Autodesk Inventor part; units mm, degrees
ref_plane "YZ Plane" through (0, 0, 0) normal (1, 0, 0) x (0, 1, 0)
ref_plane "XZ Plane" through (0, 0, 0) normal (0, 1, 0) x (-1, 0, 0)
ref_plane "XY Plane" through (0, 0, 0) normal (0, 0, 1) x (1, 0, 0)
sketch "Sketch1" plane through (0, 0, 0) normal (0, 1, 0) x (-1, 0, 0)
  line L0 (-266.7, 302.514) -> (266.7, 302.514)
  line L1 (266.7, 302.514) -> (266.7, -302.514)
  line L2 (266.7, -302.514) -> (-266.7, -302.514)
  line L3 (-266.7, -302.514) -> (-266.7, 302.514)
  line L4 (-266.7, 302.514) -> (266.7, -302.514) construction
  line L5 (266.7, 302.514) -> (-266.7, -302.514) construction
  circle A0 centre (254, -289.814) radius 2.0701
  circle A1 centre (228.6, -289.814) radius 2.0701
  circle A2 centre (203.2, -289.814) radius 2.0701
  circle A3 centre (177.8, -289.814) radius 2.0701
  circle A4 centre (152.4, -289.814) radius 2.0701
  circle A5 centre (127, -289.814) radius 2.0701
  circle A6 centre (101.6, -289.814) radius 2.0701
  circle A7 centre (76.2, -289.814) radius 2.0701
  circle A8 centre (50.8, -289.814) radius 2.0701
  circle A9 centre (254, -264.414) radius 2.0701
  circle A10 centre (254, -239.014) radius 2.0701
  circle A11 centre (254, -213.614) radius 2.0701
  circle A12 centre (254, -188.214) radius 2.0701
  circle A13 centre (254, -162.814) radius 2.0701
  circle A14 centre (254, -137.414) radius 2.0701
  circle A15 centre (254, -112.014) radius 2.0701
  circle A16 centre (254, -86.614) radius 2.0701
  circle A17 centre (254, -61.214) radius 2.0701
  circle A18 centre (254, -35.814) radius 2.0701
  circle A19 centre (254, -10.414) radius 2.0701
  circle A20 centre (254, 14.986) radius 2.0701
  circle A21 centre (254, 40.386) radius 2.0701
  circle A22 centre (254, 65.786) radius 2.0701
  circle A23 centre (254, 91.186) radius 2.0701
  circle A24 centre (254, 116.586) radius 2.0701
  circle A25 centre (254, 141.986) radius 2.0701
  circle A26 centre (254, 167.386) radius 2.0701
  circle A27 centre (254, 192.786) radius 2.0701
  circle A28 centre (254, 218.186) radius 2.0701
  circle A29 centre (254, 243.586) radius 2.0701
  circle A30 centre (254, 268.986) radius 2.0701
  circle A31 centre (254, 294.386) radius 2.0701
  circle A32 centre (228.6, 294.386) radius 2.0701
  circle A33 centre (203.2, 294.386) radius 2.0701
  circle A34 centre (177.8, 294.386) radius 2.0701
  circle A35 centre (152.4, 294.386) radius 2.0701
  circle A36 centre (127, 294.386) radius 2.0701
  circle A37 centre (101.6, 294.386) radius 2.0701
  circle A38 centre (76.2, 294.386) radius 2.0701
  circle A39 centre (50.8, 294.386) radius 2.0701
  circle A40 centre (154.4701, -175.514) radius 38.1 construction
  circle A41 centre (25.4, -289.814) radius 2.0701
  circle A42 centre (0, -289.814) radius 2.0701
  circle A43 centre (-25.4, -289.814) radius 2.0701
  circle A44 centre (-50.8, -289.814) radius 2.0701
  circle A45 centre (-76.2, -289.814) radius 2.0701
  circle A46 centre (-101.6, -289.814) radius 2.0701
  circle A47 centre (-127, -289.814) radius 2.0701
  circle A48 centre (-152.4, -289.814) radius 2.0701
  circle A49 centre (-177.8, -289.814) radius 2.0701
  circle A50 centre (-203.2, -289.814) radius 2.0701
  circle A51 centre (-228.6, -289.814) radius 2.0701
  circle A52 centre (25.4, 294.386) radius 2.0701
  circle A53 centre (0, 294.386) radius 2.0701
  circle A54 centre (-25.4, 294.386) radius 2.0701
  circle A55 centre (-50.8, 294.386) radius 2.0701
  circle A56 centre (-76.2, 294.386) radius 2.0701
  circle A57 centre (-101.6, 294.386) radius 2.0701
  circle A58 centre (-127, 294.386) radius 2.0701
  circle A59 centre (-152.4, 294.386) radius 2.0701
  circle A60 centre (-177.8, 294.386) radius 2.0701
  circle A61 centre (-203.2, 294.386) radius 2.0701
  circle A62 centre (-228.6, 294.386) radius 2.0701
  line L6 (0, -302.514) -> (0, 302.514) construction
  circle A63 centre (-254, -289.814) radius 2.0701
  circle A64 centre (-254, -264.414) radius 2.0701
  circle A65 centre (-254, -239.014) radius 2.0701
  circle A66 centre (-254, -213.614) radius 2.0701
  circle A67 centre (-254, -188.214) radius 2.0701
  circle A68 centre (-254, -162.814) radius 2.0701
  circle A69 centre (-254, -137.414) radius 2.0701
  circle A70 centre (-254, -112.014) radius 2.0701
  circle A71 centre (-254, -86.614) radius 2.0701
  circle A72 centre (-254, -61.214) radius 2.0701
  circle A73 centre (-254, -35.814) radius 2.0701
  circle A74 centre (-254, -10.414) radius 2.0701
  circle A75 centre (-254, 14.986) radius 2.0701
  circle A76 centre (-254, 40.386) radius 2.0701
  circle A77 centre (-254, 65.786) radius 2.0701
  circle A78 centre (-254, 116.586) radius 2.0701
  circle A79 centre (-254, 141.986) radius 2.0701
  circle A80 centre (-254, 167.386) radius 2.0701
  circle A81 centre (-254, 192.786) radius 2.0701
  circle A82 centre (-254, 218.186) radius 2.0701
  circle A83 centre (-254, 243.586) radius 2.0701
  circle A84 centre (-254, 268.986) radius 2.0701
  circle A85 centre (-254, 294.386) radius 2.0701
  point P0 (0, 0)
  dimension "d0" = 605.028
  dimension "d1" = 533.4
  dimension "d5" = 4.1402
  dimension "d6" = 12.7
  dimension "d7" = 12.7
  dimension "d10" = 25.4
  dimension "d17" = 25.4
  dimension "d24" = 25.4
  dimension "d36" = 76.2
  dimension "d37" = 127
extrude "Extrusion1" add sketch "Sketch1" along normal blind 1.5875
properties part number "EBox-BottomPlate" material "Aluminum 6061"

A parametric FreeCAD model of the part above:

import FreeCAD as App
import Part
import Sketcher
Q = App.Units.Quantity

doc = App.newDocument("Part")
body = doc.addObject("PartDesign::Body", "Body")

# Sketch on XZ plane
sketch1 = doc.addObject("Sketcher::SketchObject", "Sketch")
body.addObject(sketch1)
sketch1.AttachmentSupport = (doc.XZ_Plane, [""])
sketch1.MapMode = "FlatFace"
sketch1.addGeometry([
    Part.LineSegment(App.Vector(-266.7, 302.5, 0), App.Vector(266.7, 302.5, 0)),  # 0
    Part.LineSegment(App.Vector(266.7, 302.5, 0), App.Vector(266.7, -302.5, 0)),  # 1
    Part.LineSegment(App.Vector(266.7, -302.5, 0), App.Vector(-266.7, -302.5, 0)),  # 2
    Part.LineSegment(App.Vector(-266.7, -302.5, 0), App.Vector(-266.7, 302.5, 0)),  # 3
    Part.Circle(App.Vector(254, -289.8, 0), App.Vector(0, 0, 1), 2.1),  # 4
    Part.Circle(App.Vector(228.6, -289.8, 0), App.Vector(0, 0, 1), 2.1),  # 5
    Part.Circle(App.Vector(203.2, -289.8, 0), App.Vector(0, 0, 1), 2.1),  # 6
    Part.Circle(App.Vector(254, -264.4, 0), App.Vector(0, 0, 1), 2.1),  # 7
    Part.Circle(App.Vector(254, -239, 0), App.Vector(0, 0, 1), 2.1),  # 8
    Part.Circle(App.Vector(177.8, -289.8, 0), App.Vector(0, 0, 1), 2.1),  # 9
    Part.Circle(App.Vector(152.4, -289.8, 0), App.Vector(0, 0, 1), 2.1),  # 10
    Part.Circle(App.Vector(254, -213.6, 0), App.Vector(0, 0, 1), 2.1),  # 11
    Part.Circle(App.Vector(254, -188.2, 0), App.Vector(0, 0, 1), 2.1),  # 12
    Part.Circle(App.Vector(254, -162.8, 0), App.Vector(0, 0, 1), 2.1),  # 13
    Part.Circle(App.Vector(127, -289.8, 0), App.Vector(0, 0, 1), 2.1),  # 14
    Part.Circle(App.Vector(101.6, -289.8, 0), App.Vector(0, 0, 1), 2.1),  # 15
    Part.Circle(App.Vector(76.2, -289.8, 0), App.Vector(0, 0, 1), 2.1),  # 16
    Part.Circle(App.Vector(50.8, -289.8, 0), App.Vector(0, 0, 1), 2.1),  # 17
    Part.Circle(App.Vector(25.4, -289.8, 0), App.Vector(0, 0, 1), 2.1),  # 18
    Part.Circle(App.Vector(254, -137.4, 0), App.Vector(0, 0, 1), 2.1),  # 19
    Part.Circle(App.Vector(254, -112, 0), App.Vector(0, 0, 1), 2.1),  # 20
    Part.Circle(App.Vector(254, -86.6, 0), App.Vector(0, 0, 1), 2.1),  # 21
    Part.Circle(App.Vector(254, -61.2, 0), App.Vector(0, 0, 1), 2.1),  # 22
    Part.Circle(App.Vector(254, -35.8, 0), App.Vector(0, 0, 1), 2.1),  # 23
    Part.Circle(App.Vector(254, -10.4, 0), App.Vector(0, 0, 1), 2.1),  # 24
    Part.Circle(App.Vector(0, -289.8, 0), App.Vector(0, 0, 1), 2.1),  # 25
    Part.Circle(App.Vector(-25.4, -289.8, 0), App.Vector(0, 0, 1), 2.1),  # 26
    Part.Circle(App.Vector(-50.8, -289.8, 0), App.Vector(0, 0, 1), 2.1),  # 27
    Part.Circle(App.Vector(-76.2, -289.8, 0), App.Vector(0, 0, 1), 2.1),  # 28
    Part.Circle(App.Vector(-101.6, -289.8, 0), App.Vector(0, 0, 1), 2.1),  # 29
    Part.Circle(App.Vector(-127, -289.8, 0), App.Vector(0, 0, 1), 2.1),  # 30
    Part.Circle(App.Vector(-152.4, -289.8, 0), App.Vector(0, 0, 1), 2.1),  # 31
    Part.Circle(App.Vector(-177.8, -289.8, 0), App.Vector(0, 0, 1), 2.1),  # 32
    Part.Circle(App.Vector(-203.2, -289.8, 0), App.Vector(0, 0, 1), 2.1),  # 33
    Part.Circle(App.Vector(-228.6, -289.8, 0), App.Vector(0, 0, 1), 2.1),  # 34
    Part.Circle(App.Vector(-254, -289.8, 0), App.Vector(0, 0, 1), 2.1),  # 35
    Part.Circle(App.Vector(-254, -264.4, 0), App.Vector(0, 0, 1), 2.1),  # 36
    Part.Circle(App.Vector(-254, -239, 0), App.Vector(0, 0, 1), 2.1),  # 37
    Part.Circle(App.Vector(-254, -213.6, 0), App.Vector(0, 0, 1), 2.1),  # 38
    Part.Circle(App.Vector(-254, -188.2, 0), App.Vector(0, 0, 1), 2.1),  # 39
    Part.Circle(App.Vector(-254, -162.8, 0), App.Vector(0, 0, 1), 2.1),  # 40
    Part.Circle(App.Vector(-254, -137.4, 0), App.Vector(0, 0, 1), 2.1),  # 41
    Part.Circle(App.Vector(-254, -112, 0), App.Vector(0, 0, 1), 2.1),  # 42
    Part.Circle(App.Vector(-254, -86.6, 0), App.Vector(0, 0, 1), 2.1),  # 43
    Part.Circle(App.Vector(-254, -61.2, 0), App.Vector(0, 0, 1), 2.1),  # 44
    Part.Circle(App.Vector(-254, -35.8, 0), App.Vector(0, 0, 1), 2.1),  # 45
    Part.Circle(App.Vector(-254, -10.4, 0), App.Vector(0, 0, 1), 2.1),  # 46
    Part.Circle(App.Vector(254, 15, 0), App.Vector(0, 0, 1), 2.1),  # 47
    Part.Circle(App.Vector(254, 40.4, 0), App.Vector(0, 0, 1), 2.1),  # 48
    Part.Circle(App.Vector(254, 65.8, 0), App.Vector(0, 0, 1), 2.1),  # 49
    Part.Circle(App.Vector(254, 116.6, 0), App.Vector(0, 0, 1), 2.1),  # 50
    Part.Circle(App.Vector(254, 142, 0), App.Vector(0, 0, 1), 2.1),  # 51
    Part.Circle(App.Vector(254, 167.4, 0), App.Vector(0, 0, 1), 2.1),  # 52
    Part.Circle(App.Vector(254, 192.8, 0), App.Vector(0, 0, 1), 2.1),  # 53
    Part.Circle(App.Vector(254, 218.2, 0), App.Vector(0, 0, 1), 2.1),  # 54
    Part.Circle(App.Vector(254, 243.6, 0), App.Vector(0, 0, 1), 2.1),  # 55
    Part.Circle(App.Vector(254, 269, 0), App.Vector(0, 0, 1), 2.1),  # 56
    Part.Circle(App.Vector(254, 294.4, 0), App.Vector(0, 0, 1), 2.1),  # 57
    Part.Circle(App.Vector(228.6, 294.4, 0), App.Vector(0, 0, 1), 2.1),  # 58
    Part.Circle(App.Vector(203.2, 294.4, 0), App.Vector(0, 0, 1), 2.1),  # 59
    Part.Circle(App.Vector(177.8, 294.4, 0), App.Vector(0, 0, 1), 2.1),  # 60
    Part.Circle(App.Vector(152.4, 294.4, 0), App.Vector(0, 0, 1), 2.1),  # 61
    Part.Circle(App.Vector(127, 294.4, 0), App.Vector(0, 0, 1), 2.1),  # 62
    Part.Circle(App.Vector(101.6, 294.4, 0), App.Vector(0, 0, 1), 2.1),  # 63
    Part.Circle(App.Vector(76.2, 294.4, 0), App.Vector(0, 0, 1), 2.1),  # 64
    Part.Circle(App.Vector(50.8, 294.4, 0), App.Vector(0, 0, 1), 2.1),  # 65
    Part.Circle(App.Vector(25.4, 294.4, 0), App.Vector(0, 0, 1), 2.1),  # 66
    Part.Circle(App.Vector(-254, 15, 0), App.Vector(0, 0, 1), 2.1),  # 67
    Part.Circle(App.Vector(-254, 40.4, 0), App.Vector(0, 0, 1), 2.1),  # 68
    Part.Circle(App.Vector(-254, 65.8, 0), App.Vector(0, 0, 1), 2.1),  # 69
    Part.Circle(App.Vector(-254, 91.2, 0), App.Vector(0, 0, 1), 2.1),  # 70
    Part.Circle(App.Vector(-254, 116.6, 0), App.Vector(0, 0, 1), 2.1),  # 71
    Part.Circle(App.Vector(-254, 142, 0), App.Vector(0, 0, 1), 2.1),  # 72
    Part.Circle(App.Vector(0, 294.4, 0), App.Vector(0, 0, 1), 2.1),  # 73
    Part.Circle(App.Vector(-25.4, 294.4, 0), App.Vector(0, 0, 1), 2.1),  # 74
    Part.Circle(App.Vector(-50.8, 294.4, 0), App.Vector(0, 0, 1), 2.1),  # 75
    Part.Circle(App.Vector(-76.2, 294.4, 0), App.Vector(0, 0, 1), 2.1),  # 76
    Part.Circle(App.Vector(-101.6, 294.4, 0), App.Vector(0, 0, 1), 2.1),  # 77
    Part.Circle(App.Vector(-127, 294.4, 0), App.Vector(0, 0, 1), 2.1),  # 78
    Part.Circle(App.Vector(-254, 167.4, 0), App.Vector(0, 0, 1), 2.1),  # 79
    Part.Circle(App.Vector(-254, 192.8, 0), App.Vector(0, 0, 1), 2.1),  # 80
    Part.Circle(App.Vector(-254, 218.2, 0), App.Vector(0, 0, 1), 2.1),  # 81
    Part.Circle(App.Vector(-152.4, 294.4, 0), App.Vector(0, 0, 1), 2.1),  # 82
    Part.Circle(App.Vector(-177.8, 294.4, 0), App.Vector(0, 0, 1), 2.1),  # 83
    Part.Circle(App.Vector(-254, 243.6, 0), App.Vector(0, 0, 1), 2.1),  # 84
    Part.Circle(App.Vector(-203.2, 294.4, 0), App.Vector(0, 0, 1), 2.1),  # 85
    Part.Circle(App.Vector(-228.6, 294.4, 0), App.Vector(0, 0, 1), 2.1),  # 86
    Part.Circle(App.Vector(-254, 269, 0), App.Vector(0, 0, 1), 2.1),  # 87
    Part.Circle(App.Vector(-254, 294.4, 0), App.Vector(0, 0, 1), 2.1),  # 88
], False)
sketch1.addConstraint([
    Sketcher.Constraint("Coincident", 0, 2, 1, 1),
    Sketcher.Constraint("Coincident", 1, 2, 2, 1),
    Sketcher.Constraint("Coincident", 2, 2, 3, 1),
    Sketcher.Constraint("Coincident", 3, 2, 0, 1),
    Sketcher.Constraint("Horizontal", 0),
    Sketcher.Constraint("Vertical", 1),
    Sketcher.Constraint("Horizontal", 2),
    Sketcher.Constraint("Vertical", 3),
    Sketcher.Constraint("Equal", 4, 5),
    Sketcher.Constraint("Equal", 5, 6),
    Sketcher.Constraint("Equal", 6, 7),
    Sketcher.Constraint("Equal", 7, 8),
    Sketcher.Constraint("Equal", 8, 9),
    Sketcher.Constraint("Equal", 9, 10),
    Sketcher.Constraint("Equal", 10, 11),
    Sketcher.Constraint("Equal", 11, 12),
    Sketcher.Constraint("Equal", 12, 13),
    Sketcher.Constraint("Equal", 13, 14),
    Sketcher.Constraint("Equal", 14, 15),
    Sketcher.Constraint("Equal", 15, 16),
    Sketcher.Constraint("Equal", 16, 17),
    Sketcher.Constraint("Equal", 17, 18),
    Sketcher.Constraint("Equal", 18, 19),
    Sketcher.Constraint("Equal", 19, 20),
    Sketcher.Constraint("Equal", 20, 21),
    Sketcher.Constraint("Equal", 21, 22),
    Sketcher.Constraint("Equal", 22, 23),
    Sketcher.Constraint("Equal", 23, 24),
    Sketcher.Constraint("Equal", 24, 25),
    Sketcher.Constraint("Equal", 25, 26),
    Sketcher.Constraint("Equal", 26, 27),
    Sketcher.Constraint("Equal", 27, 28),
    Sketcher.Constraint("Equal", 28, 29),
    Sketcher.Constraint("Equal", 29, 30),
    Sketcher.Constraint("Equal", 30, 31),
    Sketcher.Constraint("Equal", 31, 32),
    Sketcher.Constraint("Equal", 32, 33),
    Sketcher.Constraint("Equal", 33, 34),
    Sketcher.Constraint("Equal", 34, 35),
    Sketcher.Constraint("Equal", 35, 36),
    Sketcher.Constraint("Equal", 36, 37),
    Sketcher.Constraint("Equal", 37, 38),
    Sketcher.Constraint("Equal", 38, 39),
    Sketcher.Constraint("Equal", 39, 40),
    Sketcher.Constraint("Equal", 40, 41),
    Sketcher.Constraint("Equal", 41, 42),
    Sketcher.Constraint("Equal", 42, 43),
    Sketcher.Constraint("Equal", 43, 44),
    Sketcher.Constraint("Equal", 44, 45),
    Sketcher.Constraint("Equal", 45, 46),
    Sketcher.Constraint("Equal", 46, 47),
    Sketcher.Constraint("Equal", 47, 48),
    Sketcher.Constraint("Equal", 48, 49),
    Sketcher.Constraint("Equal", 49, 50),
    Sketcher.Constraint("Equal", 50, 51),
    Sketcher.Constraint("Equal", 51, 52),
    Sketcher.Constraint("Equal", 52, 53),
    Sketcher.Constraint("Equal", 53, 54),
    Sketcher.Constraint("Equal", 54, 55),
    Sketcher.Constraint("Equal", 55, 56),
    Sketcher.Constraint("Equal", 56, 57),
    Sketcher.Constraint("Equal", 57, 58),
    Sketcher.Constraint("Equal", 58, 59),
    Sketcher.Constraint("Equal", 59, 60),
    Sketcher.Constraint("Equal", 60, 61),
    Sketcher.Constraint("Equal", 61, 62),
    Sketcher.Constraint("Equal", 62, 63),
    Sketcher.Constraint("Equal", 63, 64),
    Sketcher.Constraint("Equal", 64, 65),
    Sketcher.Constraint("Equal", 65, 66),
    Sketcher.Constraint("Equal", 66, 67),
    Sketcher.Constraint("Equal", 67, 68),
    Sketcher.Constraint("Equal", 68, 69),
    Sketcher.Constraint("Equal", 69, 70),
    Sketcher.Constraint("Equal", 70, 71),
    Sketcher.Constraint("Equal", 71, 72),
    Sketcher.Constraint("Equal", 72, 73),
    Sketcher.Constraint("Equal", 73, 74),
    Sketcher.Constraint("Equal", 74, 75),
    Sketcher.Constraint("Equal", 75, 76),
    Sketcher.Constraint("Equal", 76, 77),
    Sketcher.Constraint("Equal", 77, 78),
    Sketcher.Constraint("Equal", 78, 79),
    Sketcher.Constraint("Equal", 79, 80),
    Sketcher.Constraint("Equal", 80, 81),
    Sketcher.Constraint("Equal", 81, 82),
    Sketcher.Constraint("Equal", 82, 83),
    Sketcher.Constraint("Equal", 83, 84),
    Sketcher.Constraint("Equal", 84, 85),
    Sketcher.Constraint("Equal", 85, 86),
    Sketcher.Constraint("Equal", 86, 87),
    Sketcher.Constraint("Equal", 87, 88),
    Sketcher.Constraint("Symmetric", 0, 2, 2, 2, -1, 1),
    Sketcher.Constraint("Symmetric", 18, 3, 26, 3, -2),
    Sketcher.Constraint("Symmetric", 17, 3, 27, 3, -2),
    Sketcher.Constraint("Symmetric", 16, 3, 28, 3, -2),
    Sketcher.Constraint("Symmetric", 15, 3, 29, 3, -2),
    Sketcher.Constraint("Symmetric", 14, 3, 30, 3, -2),
    Sketcher.Constraint("Symmetric", 10, 3, 31, 3, -2),
    Sketcher.Constraint("Symmetric", 9, 3, 32, 3, -2),
    Sketcher.Constraint("Symmetric", 6, 3, 33, 3, -2),
    Sketcher.Constraint("Symmetric", 5, 3, 34, 3, -2),
    Sketcher.Constraint("Symmetric", 4, 3, 35, 3, -2),
    Sketcher.Constraint("Symmetric", 7, 3, 36, 3, -2),
    Sketcher.Constraint("Symmetric", 8, 3, 37, 3, -2),
    Sketcher.Constraint("Symmetric", 11, 3, 38, 3, -2),
    Sketcher.Constraint("Symmetric", 12, 3, 39, 3, -2),
    Sketcher.Constraint("Symmetric", 13, 3, 40, 3, -2),
    Sketcher.Constraint("Symmetric", 19, 3, 41, 3, -2),
    Sketcher.Constraint("Symmetric", 20, 3, 42, 3, -2),
    Sketcher.Constraint("Symmetric", 21, 3, 43, 3, -2),
    Sketcher.Constraint("Symmetric", 22, 3, 44, 3, -2),
    Sketcher.Constraint("Symmetric", 23, 3, 45, 3, -2),
    Sketcher.Constraint("Symmetric", 24, 3, 46, 3, -2),
    Sketcher.Constraint("Symmetric", 47, 3, 67, 3, -2),
    Sketcher.Constraint("Symmetric", 48, 3, 68, 3, -2),
    Sketcher.Constraint("Symmetric", 49, 3, 69, 3, -2),
    Sketcher.Constraint("Symmetric", 50, 3, 71, 3, -2),
    Sketcher.Constraint("Symmetric", 51, 3, 72, 3, -2),
    Sketcher.Constraint("Symmetric", 66, 3, 74, 3, -2),
    Sketcher.Constraint("Symmetric", 65, 3, 75, 3, -2),
    Sketcher.Constraint("Symmetric", 64, 3, 76, 3, -2),
    Sketcher.Constraint("Symmetric", 63, 3, 77, 3, -2),
    Sketcher.Constraint("Symmetric", 62, 3, 78, 3, -2),
    Sketcher.Constraint("Symmetric", 52, 3, 79, 3, -2),
    Sketcher.Constraint("Symmetric", 53, 3, 80, 3, -2),
    Sketcher.Constraint("Symmetric", 54, 3, 81, 3, -2),
    Sketcher.Constraint("Symmetric", 61, 3, 82, 3, -2),
    Sketcher.Constraint("Symmetric", 60, 3, 83, 3, -2),
    Sketcher.Constraint("Symmetric", 55, 3, 84, 3, -2),
    Sketcher.Constraint("Symmetric", 59, 3, 85, 3, -2),
    Sketcher.Constraint("Symmetric", 58, 3, 86, 3, -2),
    Sketcher.Constraint("Symmetric", 56, 3, 87, 3, -2),
    Sketcher.Constraint("Symmetric", 57, 3, 88, 3, -2),
    Sketcher.Constraint("PointOnObject", 25, 3, -2),
    Sketcher.Constraint("PointOnObject", 73, 3, -2),
    Sketcher.Constraint("Horizontal", 4, 3, 5, 3),
    Sketcher.Constraint("Horizontal", 5, 3, 6, 3),
    Sketcher.Constraint("Horizontal", 6, 3, 9, 3),
    Sketcher.Constraint("Horizontal", 9, 3, 10, 3),
    Sketcher.Constraint("Horizontal", 10, 3, 14, 3),
    Sketcher.Constraint("Horizontal", 14, 3, 15, 3),
    Sketcher.Constraint("Horizontal", 15, 3, 16, 3),
    Sketcher.Constraint("Horizontal", 16, 3, 17, 3),
    Sketcher.Constraint("Horizontal", 17, 3, 18, 3),
    Sketcher.Constraint("Horizontal", 18, 3, 25, 3),
    Sketcher.Constraint("Horizontal", 57, 3, 58, 3),
    Sketcher.Constraint("Horizontal", 58, 3, 59, 3),
    Sketcher.Constraint("Horizontal", 59, 3, 60, 3),
    Sketcher.Constraint("Horizontal", 60, 3, 61, 3),
    Sketcher.Constraint("Horizontal", 61, 3, 62, 3),
    Sketcher.Constraint("Horizontal", 62, 3, 63, 3),
    Sketcher.Constraint("Horizontal", 63, 3, 64, 3),
    Sketcher.Constraint("Horizontal", 64, 3, 65, 3),
    Sketcher.Constraint("Horizontal", 65, 3, 66, 3),
    Sketcher.Constraint("Horizontal", 66, 3, 73, 3),
    Sketcher.Constraint("Vertical", 4, 3, 7, 3),
    Sketcher.Constraint("Vertical", 7, 3, 8, 3),
    Sketcher.Constraint("Vertical", 8, 3, 11, 3),
    Sketcher.Constraint("Vertical", 11, 3, 12, 3),
    Sketcher.Constraint("Vertical", 12, 3, 13, 3),
    Sketcher.Constraint("Vertical", 13, 3, 19, 3),
    Sketcher.Constraint("Vertical", 19, 3, 20, 3),
    Sketcher.Constraint("Vertical", 20, 3, 21, 3),
    Sketcher.Constraint("Vertical", 21, 3, 22, 3),
    Sketcher.Constraint("Vertical", 22, 3, 23, 3),
    Sketcher.Constraint("Vertical", 23, 3, 24, 3),
    Sketcher.Constraint("Vertical", 24, 3, 47, 3),
    Sketcher.Constraint("Vertical", 47, 3, 48, 3),
    Sketcher.Constraint("Vertical", 48, 3, 49, 3),
    Sketcher.Constraint("Vertical", 49, 3, 50, 3),
    Sketcher.Constraint("Vertical", 50, 3, 51, 3),
    Sketcher.Constraint("Vertical", 51, 3, 52, 3),
    Sketcher.Constraint("Vertical", 52, 3, 53, 3),
    Sketcher.Constraint("Vertical", 53, 3, 54, 3),
    Sketcher.Constraint("Vertical", 54, 3, 55, 3),
    Sketcher.Constraint("Vertical", 55, 3, 56, 3),
    Sketcher.Constraint("Vertical", 56, 3, 57, 3),
    Sketcher.Constraint("Vertical", 5, 3, 58, 3),
    Sketcher.Constraint("Vertical", 6, 3, 59, 3),
    Sketcher.Constraint("Vertical", 9, 3, 60, 3),
    Sketcher.Constraint("Vertical", 10, 3, 61, 3),
    Sketcher.Constraint("Vertical", 14, 3, 62, 3),
    Sketcher.Constraint("Vertical", 15, 3, 63, 3),
    Sketcher.Constraint("Vertical", 16, 3, 64, 3),
    Sketcher.Constraint("Vertical", 17, 3, 65, 3),
    Sketcher.Constraint("Vertical", 18, 3, 66, 3),
    Sketcher.Constraint("Vertical", 69, 3, 70, 3),
    Sketcher.Constraint("DistanceX", 0, 1, 0, 2, Q("21 in")),
    Sketcher.Constraint("Diameter", 4, Q("0.163 in")),
    Sketcher.Constraint("DistanceX", -1, 1, 14, 3, Q("5 in")),
    Sketcher.Constraint("DistanceX", -1, 1, 16, 3, Q("3 in")),
    Sketcher.Constraint("DistanceX", -1, 1, 18, 3, Q("1 in")),
    Sketcher.Constraint("DistanceY", 1, 2, 1, 1, Q("23.82 in")),
    Sketcher.Constraint("DistanceX", -1, 1, 4, 3, Q("10 in")),
    Sketcher.Constraint("DistanceX", -1, 1, 5, 3, Q("9 in")),
    Sketcher.Constraint("DistanceX", -1, 1, 6, 3, Q("8 in")),
    Sketcher.Constraint("DistanceX", -1, 1, 9, 3, Q("7 in")),
    Sketcher.Constraint("DistanceX", -1, 1, 10, 3, Q("6 in")),
    Sketcher.Constraint("DistanceX", -1, 1, 15, 3, Q("4 in")),
    Sketcher.Constraint("DistanceX", -1, 1, 17, 3, Q("2 in")),
    Sketcher.Constraint("DistanceY", 4, 3, -1, 1, Q("11.41 in")),
    Sketcher.Constraint("DistanceY", 7, 3, -1, 1, Q("10.41 in")),
    Sketcher.Constraint("DistanceY", 8, 3, -1, 1, Q("9.41 in")),
    Sketcher.Constraint("DistanceY", 11, 3, -1, 1, Q("8.41 in")),
    Sketcher.Constraint("DistanceY", 12, 3, -1, 1, Q("7.41 in")),
    Sketcher.Constraint("DistanceY", 13, 3, -1, 1, Q("6.41 in")),
    Sketcher.Constraint("DistanceY", 19, 3, -1, 1, Q("5.41 in")),
    Sketcher.Constraint("DistanceY", 20, 3, -1, 1, Q("4.41 in")),
    Sketcher.Constraint("DistanceY", 21, 3, -1, 1, Q("3.41 in")),
    Sketcher.Constraint("DistanceY", 22, 3, -1, 1, Q("2.41 in")),
    Sketcher.Constraint("DistanceY", 23, 3, -1, 1, Q("1.41 in")),
    Sketcher.Constraint("DistanceY", 24, 3, -1, 1, Q("0.41 in")),
    Sketcher.Constraint("DistanceY", -1, 1, 47, 3, Q("0.59 in")),
    Sketcher.Constraint("DistanceY", -1, 1, 48, 3, Q("1.59 in")),
    Sketcher.Constraint("DistanceY", -1, 1, 49, 3, Q("2.59 in")),
    Sketcher.Constraint("DistanceY", -1, 1, 50, 3, Q("4.59 in")),
    Sketcher.Constraint("DistanceY", -1, 1, 51, 3, Q("5.59 in")),
    Sketcher.Constraint("DistanceY", -1, 1, 52, 3, Q("6.59 in")),
    Sketcher.Constraint("DistanceY", -1, 1, 53, 3, Q("7.59 in")),
    Sketcher.Constraint("DistanceY", -1, 1, 54, 3, Q("8.59 in")),
    Sketcher.Constraint("DistanceY", -1, 1, 55, 3, Q("9.59 in")),
    Sketcher.Constraint("DistanceY", -1, 1, 56, 3, Q("10.59 in")),
    Sketcher.Constraint("DistanceY", -1, 1, 57, 3, Q("11.59 in")),
    Sketcher.Constraint("DistanceY", -1, 1, 70, 3, Q("3.59 in")),
])
pad1 = doc.addObject("PartDesign::Pad", "Pad")
body.addObject(pad1)
pad1.Profile = sketch1
pad1.Length = Q("0.0625 in")
pad1.Reversed = True

doc.recompute()
